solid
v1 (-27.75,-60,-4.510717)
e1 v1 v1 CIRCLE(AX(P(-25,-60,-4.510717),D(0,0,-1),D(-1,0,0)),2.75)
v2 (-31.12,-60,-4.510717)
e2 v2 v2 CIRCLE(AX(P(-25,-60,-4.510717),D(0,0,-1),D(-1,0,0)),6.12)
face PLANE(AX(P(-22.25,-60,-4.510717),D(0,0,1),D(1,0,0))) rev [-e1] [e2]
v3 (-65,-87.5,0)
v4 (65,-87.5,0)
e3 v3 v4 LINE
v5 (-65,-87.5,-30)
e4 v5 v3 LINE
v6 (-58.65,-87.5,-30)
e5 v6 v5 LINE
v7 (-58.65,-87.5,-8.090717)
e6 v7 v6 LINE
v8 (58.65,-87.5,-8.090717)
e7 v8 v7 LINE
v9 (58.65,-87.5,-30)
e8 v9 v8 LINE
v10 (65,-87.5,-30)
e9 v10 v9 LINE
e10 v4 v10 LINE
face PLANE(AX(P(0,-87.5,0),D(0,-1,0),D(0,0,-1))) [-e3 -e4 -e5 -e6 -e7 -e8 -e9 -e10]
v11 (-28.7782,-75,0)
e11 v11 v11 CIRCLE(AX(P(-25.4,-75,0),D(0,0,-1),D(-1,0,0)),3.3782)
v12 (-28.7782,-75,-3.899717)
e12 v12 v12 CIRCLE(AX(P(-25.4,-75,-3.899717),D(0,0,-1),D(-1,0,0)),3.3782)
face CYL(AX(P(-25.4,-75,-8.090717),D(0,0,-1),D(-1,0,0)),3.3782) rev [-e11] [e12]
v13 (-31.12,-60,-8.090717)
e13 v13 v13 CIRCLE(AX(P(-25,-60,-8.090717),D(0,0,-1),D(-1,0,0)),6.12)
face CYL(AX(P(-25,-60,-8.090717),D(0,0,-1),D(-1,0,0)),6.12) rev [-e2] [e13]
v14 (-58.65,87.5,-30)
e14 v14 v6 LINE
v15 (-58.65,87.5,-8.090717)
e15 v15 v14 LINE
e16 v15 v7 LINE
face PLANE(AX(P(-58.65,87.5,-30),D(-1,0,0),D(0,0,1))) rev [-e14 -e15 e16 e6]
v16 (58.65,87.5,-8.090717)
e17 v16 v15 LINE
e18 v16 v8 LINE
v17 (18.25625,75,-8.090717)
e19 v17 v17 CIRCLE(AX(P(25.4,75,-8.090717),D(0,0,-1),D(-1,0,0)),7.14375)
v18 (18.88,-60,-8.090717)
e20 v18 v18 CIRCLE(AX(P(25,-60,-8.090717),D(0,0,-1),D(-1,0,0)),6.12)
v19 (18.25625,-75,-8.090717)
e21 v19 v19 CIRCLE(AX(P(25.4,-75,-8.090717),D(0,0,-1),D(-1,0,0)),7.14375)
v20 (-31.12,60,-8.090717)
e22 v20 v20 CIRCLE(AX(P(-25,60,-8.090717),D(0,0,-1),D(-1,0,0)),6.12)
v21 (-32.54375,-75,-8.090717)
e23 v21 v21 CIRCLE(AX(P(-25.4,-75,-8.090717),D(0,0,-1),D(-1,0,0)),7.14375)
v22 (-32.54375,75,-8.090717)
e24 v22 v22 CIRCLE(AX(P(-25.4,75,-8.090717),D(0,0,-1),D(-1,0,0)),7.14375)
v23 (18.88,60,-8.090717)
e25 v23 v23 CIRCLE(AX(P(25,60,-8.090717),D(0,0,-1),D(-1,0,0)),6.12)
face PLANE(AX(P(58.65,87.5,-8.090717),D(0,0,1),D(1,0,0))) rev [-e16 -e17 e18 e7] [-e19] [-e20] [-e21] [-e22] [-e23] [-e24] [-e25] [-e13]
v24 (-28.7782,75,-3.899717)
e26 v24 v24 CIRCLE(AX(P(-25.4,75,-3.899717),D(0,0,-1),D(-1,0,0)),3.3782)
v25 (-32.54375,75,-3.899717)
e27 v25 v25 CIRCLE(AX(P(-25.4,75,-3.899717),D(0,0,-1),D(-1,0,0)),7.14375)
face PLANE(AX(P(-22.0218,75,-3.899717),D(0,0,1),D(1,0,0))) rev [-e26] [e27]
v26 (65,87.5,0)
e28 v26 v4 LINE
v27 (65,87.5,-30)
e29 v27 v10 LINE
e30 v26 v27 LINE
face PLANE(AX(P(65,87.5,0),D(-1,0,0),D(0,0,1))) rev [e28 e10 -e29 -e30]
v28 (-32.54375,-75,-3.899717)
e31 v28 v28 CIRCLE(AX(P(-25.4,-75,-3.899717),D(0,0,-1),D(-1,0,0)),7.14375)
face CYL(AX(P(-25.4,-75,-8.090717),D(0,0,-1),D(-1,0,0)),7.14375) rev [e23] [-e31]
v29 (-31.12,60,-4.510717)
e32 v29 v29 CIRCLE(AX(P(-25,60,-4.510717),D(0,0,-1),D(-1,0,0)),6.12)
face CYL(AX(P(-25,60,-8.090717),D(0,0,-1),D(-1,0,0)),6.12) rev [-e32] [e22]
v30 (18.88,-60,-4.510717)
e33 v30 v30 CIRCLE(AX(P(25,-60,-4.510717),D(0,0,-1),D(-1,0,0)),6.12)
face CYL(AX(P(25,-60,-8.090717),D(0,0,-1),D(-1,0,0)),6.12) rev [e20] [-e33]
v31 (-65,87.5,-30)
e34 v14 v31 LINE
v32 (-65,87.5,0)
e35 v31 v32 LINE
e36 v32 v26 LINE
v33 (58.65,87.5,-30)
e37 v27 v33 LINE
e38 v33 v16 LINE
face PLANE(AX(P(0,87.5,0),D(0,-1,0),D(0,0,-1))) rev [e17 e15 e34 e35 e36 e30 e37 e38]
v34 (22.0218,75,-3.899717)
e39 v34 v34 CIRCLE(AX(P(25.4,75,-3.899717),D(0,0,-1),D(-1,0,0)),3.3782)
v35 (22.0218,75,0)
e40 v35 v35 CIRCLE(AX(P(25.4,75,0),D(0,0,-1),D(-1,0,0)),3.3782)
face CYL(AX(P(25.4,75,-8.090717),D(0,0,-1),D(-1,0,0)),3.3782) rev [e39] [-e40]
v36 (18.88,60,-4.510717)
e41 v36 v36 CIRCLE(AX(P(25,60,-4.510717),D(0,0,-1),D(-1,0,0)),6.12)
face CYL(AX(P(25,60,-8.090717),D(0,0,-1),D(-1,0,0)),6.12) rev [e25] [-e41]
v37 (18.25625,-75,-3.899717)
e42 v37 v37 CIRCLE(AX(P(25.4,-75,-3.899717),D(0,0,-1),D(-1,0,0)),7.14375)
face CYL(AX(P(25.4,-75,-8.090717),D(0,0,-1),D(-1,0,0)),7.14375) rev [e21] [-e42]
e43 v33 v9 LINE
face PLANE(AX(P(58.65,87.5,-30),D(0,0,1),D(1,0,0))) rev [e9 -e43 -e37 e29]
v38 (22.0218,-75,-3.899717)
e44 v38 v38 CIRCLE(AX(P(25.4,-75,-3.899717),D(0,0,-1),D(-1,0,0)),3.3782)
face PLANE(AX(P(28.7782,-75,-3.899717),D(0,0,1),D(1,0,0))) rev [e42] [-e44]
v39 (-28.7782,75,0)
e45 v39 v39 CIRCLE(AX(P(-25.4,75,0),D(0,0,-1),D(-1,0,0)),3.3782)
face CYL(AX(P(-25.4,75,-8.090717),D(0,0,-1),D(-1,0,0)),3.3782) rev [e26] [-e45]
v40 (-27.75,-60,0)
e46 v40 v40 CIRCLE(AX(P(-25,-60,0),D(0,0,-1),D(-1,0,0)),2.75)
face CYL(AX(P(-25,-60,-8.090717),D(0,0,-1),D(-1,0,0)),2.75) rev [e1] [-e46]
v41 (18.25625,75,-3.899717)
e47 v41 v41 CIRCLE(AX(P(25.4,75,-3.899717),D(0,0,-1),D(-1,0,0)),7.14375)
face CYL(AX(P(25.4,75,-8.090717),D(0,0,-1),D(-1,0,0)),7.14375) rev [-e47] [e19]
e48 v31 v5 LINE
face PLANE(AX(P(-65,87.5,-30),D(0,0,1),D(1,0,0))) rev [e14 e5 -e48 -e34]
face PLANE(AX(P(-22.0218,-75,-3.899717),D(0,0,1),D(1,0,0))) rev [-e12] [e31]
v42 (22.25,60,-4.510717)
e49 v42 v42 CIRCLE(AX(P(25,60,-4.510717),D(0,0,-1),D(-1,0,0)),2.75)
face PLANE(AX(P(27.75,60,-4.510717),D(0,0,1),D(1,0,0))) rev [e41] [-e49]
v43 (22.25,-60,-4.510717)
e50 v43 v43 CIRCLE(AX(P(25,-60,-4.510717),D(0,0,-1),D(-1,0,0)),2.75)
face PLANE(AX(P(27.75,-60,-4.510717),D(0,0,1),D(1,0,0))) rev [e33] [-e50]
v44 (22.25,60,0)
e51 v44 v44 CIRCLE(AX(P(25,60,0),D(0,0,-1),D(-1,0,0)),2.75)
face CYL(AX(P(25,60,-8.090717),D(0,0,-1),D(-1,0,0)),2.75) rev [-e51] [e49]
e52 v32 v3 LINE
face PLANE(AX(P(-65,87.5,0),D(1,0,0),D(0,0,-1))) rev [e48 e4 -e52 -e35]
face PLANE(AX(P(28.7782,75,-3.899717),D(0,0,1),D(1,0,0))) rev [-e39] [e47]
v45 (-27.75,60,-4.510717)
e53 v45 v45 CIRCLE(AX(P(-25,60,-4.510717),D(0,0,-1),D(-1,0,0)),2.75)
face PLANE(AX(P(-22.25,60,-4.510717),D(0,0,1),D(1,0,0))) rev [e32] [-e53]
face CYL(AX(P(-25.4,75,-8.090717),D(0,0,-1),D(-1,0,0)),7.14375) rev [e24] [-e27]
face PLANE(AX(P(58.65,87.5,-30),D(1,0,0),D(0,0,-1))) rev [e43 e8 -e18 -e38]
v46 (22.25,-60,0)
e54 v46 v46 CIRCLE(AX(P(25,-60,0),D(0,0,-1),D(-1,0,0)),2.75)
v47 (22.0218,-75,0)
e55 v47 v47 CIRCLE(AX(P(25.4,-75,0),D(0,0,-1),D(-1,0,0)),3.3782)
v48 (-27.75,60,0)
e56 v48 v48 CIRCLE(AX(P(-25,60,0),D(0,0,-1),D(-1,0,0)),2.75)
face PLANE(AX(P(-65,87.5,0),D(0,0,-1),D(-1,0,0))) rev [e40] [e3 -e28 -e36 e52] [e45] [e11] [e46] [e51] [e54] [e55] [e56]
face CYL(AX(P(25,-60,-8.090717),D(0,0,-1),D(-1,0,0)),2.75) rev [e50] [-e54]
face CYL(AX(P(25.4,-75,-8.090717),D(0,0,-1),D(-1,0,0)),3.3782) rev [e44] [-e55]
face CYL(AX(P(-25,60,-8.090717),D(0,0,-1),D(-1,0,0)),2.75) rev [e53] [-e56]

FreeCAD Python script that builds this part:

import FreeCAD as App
import Part
import Sketcher
from FreeCAD import Vector
Q = App.Units.Quantity

doc = App.newDocument("Part")
params = doc.addObject("Spreadsheet::Sheet", "Params")
for row, (alias, value) in enumerate([
    ("sketch1_width", "130 mm"),
    ("sketch1_height", "30 mm"),
    ("sketch1_width2", "117.3 mm"),
    ("pad1_length", "175 mm"),
    ("hole_diameter", "6.7564 mm"),
    ("hole_cbore_diameter", "14.2875 mm"),
    ("hole_cbore_depth", "4.191 mm"),
    ("sketch3_diameter", "5.5 mm"),
    ("hole2_diameter", "5.5 mm"),
    ("hole2_cbore_diameter", "12.24 mm"),
    ("hole2_cbore_depth", "3.58 mm"),
], start=1):
    params.set(f"A{row}", alias)
    params.set(f"B{row}", "=" + value)
    params.setAlias(f"B{row}", alias)

body = doc.addObject("PartDesign::Body", "Body")

sketch1 = body.newObject("Sketcher::SketchObject", "Sketch")
sketch1.AttachmentSupport = (doc.getObject("XZ_Plane"), [""])
sketch1.MapMode = "FlatFace"
sketch1.addGeometry(Part.LineSegment(Vector(65, -30, 0), Vector(59, -30, 0)), False)
sketch1.addGeometry(Part.LineSegment(Vector(59, -30, 0), Vector(59, -8, 0)), False)
sketch1.addGeometry(Part.LineSegment(Vector(59, -8, 0), Vector(-59, -8, 0)), False)
sketch1.addGeometry(Part.LineSegment(Vector(-59, -8, 0), Vector(-59, -30, 0)), False)
sketch1.addGeometry(Part.LineSegment(Vector(-59, -30, 0), Vector(-65, -30, 0)), False)
sketch1.addGeometry(Part.LineSegment(Vector(-65, -30, 0), Vector(-65, 0, 0)), False)
sketch1.addGeometry(Part.LineSegment(Vector(-65, 0, 0), Vector(65, 0, 0)), False)
sketch1.addGeometry(Part.LineSegment(Vector(65, 0, 0), Vector(65, -30, 0)), False)
sketch1.addConstraint(Sketcher.Constraint("Coincident", 0, 2, 1, 1))
sketch1.addConstraint(Sketcher.Constraint("Coincident", 1, 2, 2, 1))
sketch1.addConstraint(Sketcher.Constraint("Coincident", 2, 2, 3, 1))
sketch1.addConstraint(Sketcher.Constraint("Coincident", 3, 2, 4, 1))
sketch1.addConstraint(Sketcher.Constraint("Coincident", 4, 2, 5, 1))
sketch1.addConstraint(Sketcher.Constraint("Coincident", 5, 2, 6, 1))
sketch1.addConstraint(Sketcher.Constraint("Coincident", 6, 2, 7, 1))
sketch1.addConstraint(Sketcher.Constraint("Coincident", 7, 2, 0, 1))
sketch1.addConstraint(Sketcher.Constraint("Horizontal", 0))
sketch1.addConstraint(Sketcher.Constraint("Vertical", 1))
sketch1.addConstraint(Sketcher.Constraint("Horizontal", 2))
sketch1.addConstraint(Sketcher.Constraint("Vertical", 3))
sketch1.addConstraint(Sketcher.Constraint("Horizontal", 4))
sketch1.addConstraint(Sketcher.Constraint("Vertical", 5))
sketch1.addConstraint(Sketcher.Constraint("Horizontal", 6))
sketch1.addConstraint(Sketcher.Constraint("Vertical", 7))
sketch1.addConstraint(Sketcher.Constraint("Symmetric", 5, 2, 6, 2, -1, 1))
sketch1.addConstraint(Sketcher.Constraint("Symmetric", 0, 2, 3, 2, -2))
sketch1.addConstraint(Sketcher.Constraint("DistanceX", 6, 1, 6, 2, Q("130 mm")))
sketch1.addConstraint(Sketcher.Constraint("DistanceY", 5, 1, 5, 2, Q("30 mm")))
sketch1.addConstraint(Sketcher.Constraint("DistanceX", 2, 2, 2, 1, Q("117.3 mm")))
sketch1.addConstraint(Sketcher.Constraint("DistanceY", 1, 1, 1, 2, Q("21.909283 mm")))
sketch1.setExpression("Constraints[18]", "Params.sketch1_width")
sketch1.setExpression("Constraints[19]", "Params.sketch1_height")
sketch1.setExpression("Constraints[20]", "Params.sketch1_width2")
pad1 = body.newObject("PartDesign::Pad", "Pad")
pad1.Profile = sketch1
pad1.setExpression("Length", "Params.pad1_length")
pad1.Midplane = True

sketch2 = body.newObject("Sketcher::SketchObject", "Sketch001")
sketch2.AttachmentSupport = (doc.getObject("XY_Plane"), [""])
sketch2.MapMode = "FlatFace"
sketch2.AttachmentOffset = App.Placement(Vector(0, 0, -8.090717), App.Rotation())
sketch2.addGeometry(Part.Circle(Vector(25.4, 75, 0), Vector(0, 0, 1), 3.4), False)
sketch2.addGeometry(Part.Circle(Vector(-25.4, -75, 0), Vector(0, 0, 1), 3.4), False)
sketch2.addGeometry(Part.Circle(Vector(25.4, -75, 0), Vector(0, 0, 1), 3.4), False)
sketch2.addGeometry(Part.Circle(Vector(-25.4, 75, 0), Vector(0, 0, 1), 3.4), False)
sketch2.addConstraint(Sketcher.Constraint("Equal", 0, 1))
sketch2.addConstraint(Sketcher.Constraint("Equal", 1, 2))
sketch2.addConstraint(Sketcher.Constraint("Equal", 2, 3))
sketch2.addConstraint(Sketcher.Constraint("Symmetric", 0, 3, 1, 3, -1, 1))
sketch2.addConstraint(Sketcher.Constraint("Symmetric", 2, 3, 3, 3, -1, 1))
sketch2.addConstraint(Sketcher.Constraint("Symmetric", 1, 3, 2, 3, -2))
sketch2.addConstraint(Sketcher.Constraint("DistanceY", -1, 1, 0, 3, Q("75 mm")))
sketch2.addConstraint(Sketcher.Constraint("Diameter", 0, Q("6.7564 mm")))
sketch2.addConstraint(Sketcher.Constraint("DistanceX", -1, 1, 0, 3, Q("25.4 mm")))
doc.recompute()
hole = body.newObject("PartDesign::Hole", "Hole")
hole.Profile = sketch2
hole.ThreadType = "None"
hole.setExpression("Diameter", "Params.hole_diameter")
hole.DepthType = "ThroughAll"
hole.HoleCutType = "Counterbore"
hole.setExpression("HoleCutDiameter", "Params.hole_cbore_diameter")
hole.setExpression("HoleCutDepth", "Params.hole_cbore_depth")
hole.Reversed = True

sketch3 = body.newObject("Sketcher::SketchObject", "Sketch002")
sketch3.AttachmentSupport = (doc.getObject("XY_Plane"), [""])
sketch3.MapMode = "FlatFace"
sketch3.AttachmentOffset = App.Placement(Vector(0, 0, -8.090717), App.Rotation())
sketch3.addGeometry(Part.Circle(Vector(-25, -60, 0), Vector(0, 0, 1), 2.8), False)
sketch3.addGeometry(Part.Circle(Vector(25, 60, 0), Vector(0, 0, 1), 2.8), False)
sketch3.addGeometry(Part.Circle(Vector(25, -60, 0), Vector(0, 0, 1), 2.8), False)
sketch3.addGeometry(Part.Circle(Vector(-25, 60, 0), Vector(0, 0, 1), 2.8), False)
sketch3.addConstraint(Sketcher.Constraint("Equal", 0, 1))
sketch3.addConstraint(Sketcher.Constraint("Equal", 1, 2))
sketch3.addConstraint(Sketcher.Constraint("Equal", 2, 3))
sketch3.addConstraint(Sketcher.Constraint("Symmetric", 0, 3, 1, 3, -1, 1))
sketch3.addConstraint(Sketcher.Constraint("Symmetric", 2, 3, 3, 3, -1, 1))
sketch3.addConstraint(Sketcher.Constraint("Symmetric", 0, 3, 2, 3, -2))
sketch3.addConstraint(Sketcher.Constraint("Diameter", 0, Q("5.5 mm")))
sketch3.addConstraint(Sketcher.Constraint("DistanceX", 0, 3, -1, 1, Q("25 mm")))
sketch3.addConstraint(Sketcher.Constraint("DistanceY", 0, 3, -1, 1, Q("60 mm")))
sketch3.setExpression("Constraints[6]", "Params.sketch3_diameter")
doc.recompute()
hole2 = body.newObject("PartDesign::Hole", "Hole001")
hole2.Profile = sketch3
hole2.ThreadType = "None"
hole2.setExpression("Diameter", "Params.hole2_diameter")
hole2.DepthType = "ThroughAll"
hole2.HoleCutType = "Counterbore"
hole2.setExpression("HoleCutDiameter", "Params.hole2_cbore_diameter")
hole2.setExpression("HoleCutDepth", "Params.hole2_cbore_depth")
hole2.Reversed = True

doc.recompute()
